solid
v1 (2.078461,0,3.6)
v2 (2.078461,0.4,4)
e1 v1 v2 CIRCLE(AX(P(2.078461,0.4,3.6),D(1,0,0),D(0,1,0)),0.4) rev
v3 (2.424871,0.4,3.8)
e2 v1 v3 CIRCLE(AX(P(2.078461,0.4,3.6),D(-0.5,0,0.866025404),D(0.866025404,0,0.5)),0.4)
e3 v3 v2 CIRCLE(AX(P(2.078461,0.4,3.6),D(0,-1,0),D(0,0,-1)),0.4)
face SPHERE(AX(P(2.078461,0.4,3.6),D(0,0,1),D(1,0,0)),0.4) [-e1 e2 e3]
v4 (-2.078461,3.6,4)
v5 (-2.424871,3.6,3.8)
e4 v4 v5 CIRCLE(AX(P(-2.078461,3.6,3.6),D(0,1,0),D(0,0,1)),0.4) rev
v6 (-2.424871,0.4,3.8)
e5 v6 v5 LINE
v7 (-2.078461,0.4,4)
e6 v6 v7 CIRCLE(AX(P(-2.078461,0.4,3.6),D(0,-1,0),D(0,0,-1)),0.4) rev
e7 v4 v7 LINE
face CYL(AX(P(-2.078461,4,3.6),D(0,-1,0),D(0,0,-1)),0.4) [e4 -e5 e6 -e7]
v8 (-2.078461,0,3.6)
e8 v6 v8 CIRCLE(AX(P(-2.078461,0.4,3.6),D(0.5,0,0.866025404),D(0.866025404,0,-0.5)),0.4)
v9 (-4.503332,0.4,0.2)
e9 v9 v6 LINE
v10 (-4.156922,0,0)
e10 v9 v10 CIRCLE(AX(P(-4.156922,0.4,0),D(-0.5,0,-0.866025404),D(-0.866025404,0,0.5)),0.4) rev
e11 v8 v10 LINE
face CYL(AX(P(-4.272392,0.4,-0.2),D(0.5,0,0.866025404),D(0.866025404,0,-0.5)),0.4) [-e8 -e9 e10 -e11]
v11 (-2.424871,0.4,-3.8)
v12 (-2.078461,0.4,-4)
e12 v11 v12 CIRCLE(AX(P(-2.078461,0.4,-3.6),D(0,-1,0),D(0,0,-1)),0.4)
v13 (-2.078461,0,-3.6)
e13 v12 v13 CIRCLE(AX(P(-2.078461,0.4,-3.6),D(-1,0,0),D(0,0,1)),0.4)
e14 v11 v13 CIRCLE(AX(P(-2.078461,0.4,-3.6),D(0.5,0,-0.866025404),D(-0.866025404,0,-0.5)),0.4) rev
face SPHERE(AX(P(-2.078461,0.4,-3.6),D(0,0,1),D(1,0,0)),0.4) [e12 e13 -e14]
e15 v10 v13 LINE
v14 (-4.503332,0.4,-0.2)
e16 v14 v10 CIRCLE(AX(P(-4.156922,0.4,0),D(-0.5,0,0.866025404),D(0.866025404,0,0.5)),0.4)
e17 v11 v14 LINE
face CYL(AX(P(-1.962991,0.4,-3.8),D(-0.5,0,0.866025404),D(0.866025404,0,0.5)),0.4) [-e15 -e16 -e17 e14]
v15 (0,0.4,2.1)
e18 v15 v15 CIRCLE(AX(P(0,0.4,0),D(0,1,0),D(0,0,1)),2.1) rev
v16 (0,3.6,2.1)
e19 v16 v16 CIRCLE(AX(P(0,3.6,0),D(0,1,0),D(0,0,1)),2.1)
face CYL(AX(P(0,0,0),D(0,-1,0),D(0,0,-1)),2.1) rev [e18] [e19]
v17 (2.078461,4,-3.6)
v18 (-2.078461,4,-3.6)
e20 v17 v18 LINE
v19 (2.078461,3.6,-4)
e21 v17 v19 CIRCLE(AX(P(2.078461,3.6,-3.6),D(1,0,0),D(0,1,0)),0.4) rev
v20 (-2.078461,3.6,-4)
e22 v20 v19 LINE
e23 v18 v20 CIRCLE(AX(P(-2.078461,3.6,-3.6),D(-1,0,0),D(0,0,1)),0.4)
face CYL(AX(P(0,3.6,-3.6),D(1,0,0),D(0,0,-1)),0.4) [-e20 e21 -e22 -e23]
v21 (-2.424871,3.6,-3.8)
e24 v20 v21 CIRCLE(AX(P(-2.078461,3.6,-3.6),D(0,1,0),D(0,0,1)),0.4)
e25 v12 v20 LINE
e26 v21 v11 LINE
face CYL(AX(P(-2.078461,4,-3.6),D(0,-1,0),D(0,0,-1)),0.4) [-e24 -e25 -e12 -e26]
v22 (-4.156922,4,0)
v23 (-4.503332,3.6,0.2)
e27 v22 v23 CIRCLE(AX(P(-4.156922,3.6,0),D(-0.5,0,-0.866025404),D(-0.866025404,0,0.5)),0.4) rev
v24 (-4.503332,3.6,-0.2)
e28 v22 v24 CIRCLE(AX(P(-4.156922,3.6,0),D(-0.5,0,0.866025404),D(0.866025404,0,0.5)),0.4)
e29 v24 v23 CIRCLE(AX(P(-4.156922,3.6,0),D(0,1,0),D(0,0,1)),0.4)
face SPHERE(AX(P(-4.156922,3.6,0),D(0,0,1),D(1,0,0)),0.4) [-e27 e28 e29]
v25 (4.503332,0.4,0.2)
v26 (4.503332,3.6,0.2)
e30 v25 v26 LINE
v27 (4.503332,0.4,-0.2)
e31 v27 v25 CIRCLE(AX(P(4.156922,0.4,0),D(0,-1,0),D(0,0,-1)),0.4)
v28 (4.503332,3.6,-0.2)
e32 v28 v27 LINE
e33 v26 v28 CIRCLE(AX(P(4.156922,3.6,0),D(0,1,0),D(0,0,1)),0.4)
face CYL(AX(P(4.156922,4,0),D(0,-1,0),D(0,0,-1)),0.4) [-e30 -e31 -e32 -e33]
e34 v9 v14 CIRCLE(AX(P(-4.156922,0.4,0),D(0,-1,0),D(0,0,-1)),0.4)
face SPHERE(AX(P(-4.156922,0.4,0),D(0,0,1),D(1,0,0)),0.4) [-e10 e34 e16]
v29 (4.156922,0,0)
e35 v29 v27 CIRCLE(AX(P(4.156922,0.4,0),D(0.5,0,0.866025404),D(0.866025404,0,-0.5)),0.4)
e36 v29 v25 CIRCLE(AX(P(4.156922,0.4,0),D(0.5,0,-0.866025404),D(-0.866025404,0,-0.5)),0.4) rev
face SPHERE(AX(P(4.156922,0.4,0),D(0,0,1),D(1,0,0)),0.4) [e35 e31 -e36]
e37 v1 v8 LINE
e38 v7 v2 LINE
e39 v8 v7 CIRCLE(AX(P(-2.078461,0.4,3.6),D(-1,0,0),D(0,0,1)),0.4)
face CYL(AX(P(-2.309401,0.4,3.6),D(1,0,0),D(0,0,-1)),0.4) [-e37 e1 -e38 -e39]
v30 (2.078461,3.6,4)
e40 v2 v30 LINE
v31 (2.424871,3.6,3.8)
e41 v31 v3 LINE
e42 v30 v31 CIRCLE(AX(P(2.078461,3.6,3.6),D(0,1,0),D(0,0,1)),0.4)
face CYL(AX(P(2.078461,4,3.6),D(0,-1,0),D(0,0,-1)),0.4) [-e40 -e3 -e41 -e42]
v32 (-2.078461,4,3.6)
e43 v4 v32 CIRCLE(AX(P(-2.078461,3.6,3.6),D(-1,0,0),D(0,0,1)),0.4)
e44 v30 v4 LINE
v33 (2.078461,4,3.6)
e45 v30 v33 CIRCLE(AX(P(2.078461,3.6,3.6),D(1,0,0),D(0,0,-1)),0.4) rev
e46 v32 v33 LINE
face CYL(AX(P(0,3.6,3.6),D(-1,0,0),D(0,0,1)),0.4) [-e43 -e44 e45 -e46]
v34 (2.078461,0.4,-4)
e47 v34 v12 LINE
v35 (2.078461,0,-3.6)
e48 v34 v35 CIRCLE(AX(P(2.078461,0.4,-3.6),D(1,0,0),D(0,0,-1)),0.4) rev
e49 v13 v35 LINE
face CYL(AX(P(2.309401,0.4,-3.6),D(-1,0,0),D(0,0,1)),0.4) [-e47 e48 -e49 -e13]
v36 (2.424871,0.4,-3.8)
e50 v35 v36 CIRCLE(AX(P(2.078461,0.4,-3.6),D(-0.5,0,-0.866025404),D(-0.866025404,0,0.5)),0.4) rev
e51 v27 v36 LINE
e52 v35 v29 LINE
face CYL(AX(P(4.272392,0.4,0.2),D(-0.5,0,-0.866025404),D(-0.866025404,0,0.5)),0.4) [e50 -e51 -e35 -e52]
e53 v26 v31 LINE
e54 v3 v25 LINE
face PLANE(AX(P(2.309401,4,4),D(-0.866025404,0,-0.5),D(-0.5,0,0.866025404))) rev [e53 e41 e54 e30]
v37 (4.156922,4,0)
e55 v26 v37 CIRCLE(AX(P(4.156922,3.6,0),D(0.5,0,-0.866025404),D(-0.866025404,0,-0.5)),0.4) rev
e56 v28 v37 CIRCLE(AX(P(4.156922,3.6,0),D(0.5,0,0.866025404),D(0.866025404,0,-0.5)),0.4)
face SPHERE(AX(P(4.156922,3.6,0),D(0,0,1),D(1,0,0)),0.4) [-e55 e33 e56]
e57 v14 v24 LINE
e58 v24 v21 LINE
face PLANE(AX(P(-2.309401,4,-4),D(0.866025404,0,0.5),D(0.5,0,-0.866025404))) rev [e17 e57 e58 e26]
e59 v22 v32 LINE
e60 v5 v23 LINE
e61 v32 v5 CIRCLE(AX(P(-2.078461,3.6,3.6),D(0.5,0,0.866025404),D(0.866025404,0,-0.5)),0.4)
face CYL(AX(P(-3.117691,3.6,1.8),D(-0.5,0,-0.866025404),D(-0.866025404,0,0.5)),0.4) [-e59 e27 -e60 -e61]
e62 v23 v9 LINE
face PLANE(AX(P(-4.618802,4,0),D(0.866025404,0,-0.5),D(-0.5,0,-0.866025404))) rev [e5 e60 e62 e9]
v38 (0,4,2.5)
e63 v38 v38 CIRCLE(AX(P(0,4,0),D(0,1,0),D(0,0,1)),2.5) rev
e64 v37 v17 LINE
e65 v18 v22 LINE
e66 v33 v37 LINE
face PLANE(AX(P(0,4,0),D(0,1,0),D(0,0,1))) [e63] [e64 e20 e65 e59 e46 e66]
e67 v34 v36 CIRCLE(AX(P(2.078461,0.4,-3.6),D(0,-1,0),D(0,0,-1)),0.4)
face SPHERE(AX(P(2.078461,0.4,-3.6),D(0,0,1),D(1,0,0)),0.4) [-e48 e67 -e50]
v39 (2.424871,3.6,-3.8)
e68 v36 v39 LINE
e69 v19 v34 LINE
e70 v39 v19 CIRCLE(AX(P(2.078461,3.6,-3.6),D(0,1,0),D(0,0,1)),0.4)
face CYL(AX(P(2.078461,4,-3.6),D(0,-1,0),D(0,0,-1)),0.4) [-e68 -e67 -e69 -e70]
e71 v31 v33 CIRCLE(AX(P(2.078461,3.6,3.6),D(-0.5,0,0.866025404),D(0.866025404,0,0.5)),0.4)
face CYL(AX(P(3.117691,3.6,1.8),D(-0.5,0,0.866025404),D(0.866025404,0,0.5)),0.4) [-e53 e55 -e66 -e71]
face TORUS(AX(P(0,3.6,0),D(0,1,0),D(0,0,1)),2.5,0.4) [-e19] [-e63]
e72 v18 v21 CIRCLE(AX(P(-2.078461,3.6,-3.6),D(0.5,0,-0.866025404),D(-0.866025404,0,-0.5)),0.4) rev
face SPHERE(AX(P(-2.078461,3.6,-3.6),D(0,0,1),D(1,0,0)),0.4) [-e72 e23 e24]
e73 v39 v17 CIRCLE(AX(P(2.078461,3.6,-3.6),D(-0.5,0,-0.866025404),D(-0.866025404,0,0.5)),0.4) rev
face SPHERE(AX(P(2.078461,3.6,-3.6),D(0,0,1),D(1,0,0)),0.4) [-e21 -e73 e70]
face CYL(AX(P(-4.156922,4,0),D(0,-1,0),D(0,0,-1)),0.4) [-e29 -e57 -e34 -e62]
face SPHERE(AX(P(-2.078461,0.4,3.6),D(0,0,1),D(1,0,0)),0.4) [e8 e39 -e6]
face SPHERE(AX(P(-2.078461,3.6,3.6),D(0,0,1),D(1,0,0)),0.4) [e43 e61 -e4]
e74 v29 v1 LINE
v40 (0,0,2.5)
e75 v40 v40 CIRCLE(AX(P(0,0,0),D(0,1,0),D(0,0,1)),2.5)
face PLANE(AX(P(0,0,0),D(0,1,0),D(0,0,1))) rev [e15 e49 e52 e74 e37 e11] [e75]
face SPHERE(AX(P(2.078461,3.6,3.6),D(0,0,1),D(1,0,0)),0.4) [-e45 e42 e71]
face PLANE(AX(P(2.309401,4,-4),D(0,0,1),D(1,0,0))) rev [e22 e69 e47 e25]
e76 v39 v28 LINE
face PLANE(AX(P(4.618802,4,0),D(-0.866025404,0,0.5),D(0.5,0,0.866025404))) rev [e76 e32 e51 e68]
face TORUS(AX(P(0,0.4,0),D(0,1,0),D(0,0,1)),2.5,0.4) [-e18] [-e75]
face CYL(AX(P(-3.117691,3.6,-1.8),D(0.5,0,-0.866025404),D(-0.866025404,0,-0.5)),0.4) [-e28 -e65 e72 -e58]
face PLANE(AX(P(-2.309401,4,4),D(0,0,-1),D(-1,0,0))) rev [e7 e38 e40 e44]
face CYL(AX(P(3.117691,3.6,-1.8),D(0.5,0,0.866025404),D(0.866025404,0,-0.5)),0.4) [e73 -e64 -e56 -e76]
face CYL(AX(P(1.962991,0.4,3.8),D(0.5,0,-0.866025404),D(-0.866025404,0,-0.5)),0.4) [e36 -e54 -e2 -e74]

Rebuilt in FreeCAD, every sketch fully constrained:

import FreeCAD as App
import Part
import Sketcher

V = App.Vector
Q = App.Units.Quantity


def add_polygon(sketch, points):
    """Adds a closed chain of lines whose ends are joined by coincident constraints."""
    first, n = sketch.GeometryCount, len(points)
    for a, b in zip(points, points[1:] + points[:1]):
        sketch.addGeometry(Part.LineSegment(App.Vector(*a, 0), App.Vector(*b, 0)), False)
    for i in range(n):
        sketch.addConstraint(Sketcher.Constraint("Coincident", first + i, 2, first + (i + 1) % n, 1))

doc = App.newDocument("Part")
body = doc.addObject("PartDesign::Body", "Body")

sketch1 = body.newObject("Sketcher::SketchObject", "Sketch")
sketch1.AttachmentSupport = (doc.getObject("XZ_Plane"), [""])
sketch1.MapMode = "FlatFace"
add_polygon(sketch1, [(2.3, -4), (-2.3, -4), (-4.6, 0), (-2.3, 4), (2.3, 4), (4.6, 0)])
sketch1.addConstraint([
    Sketcher.Constraint("Horizontal", 0),
    Sketcher.Constraint("Horizontal", 3),
    Sketcher.Constraint("Symmetric", 0, 2, 3, 2, -1, 1),
    Sketcher.Constraint("Symmetric", 1, 2, 4, 2, -1, 1),
    Sketcher.Constraint("PointOnObject", 1, 2, -1),
    Sketcher.Constraint("Parallel", 2, 5),
    Sketcher.Constraint("Vertical", 0, 2, 2, 2),
    Sketcher.Constraint("Angle", 1, Q("120 deg")),
    Sketcher.Constraint("DistanceY", 0, 2, -1, 1, Q("4 mm")),
    Sketcher.Constraint("DistanceX", 0, 2, -1, 1, Q("2.309401 mm")),
])
pad1 = body.newObject("PartDesign::Pad", "Pad")
pad1.Profile = sketch1
pad1.Length = 4
pad1.Reversed = True

sketch2 = body.newObject("Sketcher::SketchObject", "Sketch001")
sketch2.AttachmentSupport = (doc.getObject("XZ_Plane"), [""])
sketch2.MapMode = "FlatFace"
sketch2.addGeometry(Part.Circle(V(0, 0, 0), V(0, 0, 1), 2.1), False)
sketch2.addConstraint([
    Sketcher.Constraint("Coincident", 0, 3, -1, 1),
    Sketcher.Constraint("Diameter", 0, Q("4.2 mm")),
])
doc.recompute()
hole = body.newObject("PartDesign::Hole", "Hole")
hole.Profile = sketch2
hole.ThreadType = "None"
hole.Diameter = 4.2
hole.DepthType = "ThroughAll"
doc.recompute()

fillet = body.newObject("PartDesign::Fillet", "Fillet")
fillet.Base = (hole, ["Edge1"])
fillet.UseAllEdges = True
fillet.Radius = 0.4

doc.recompute()
